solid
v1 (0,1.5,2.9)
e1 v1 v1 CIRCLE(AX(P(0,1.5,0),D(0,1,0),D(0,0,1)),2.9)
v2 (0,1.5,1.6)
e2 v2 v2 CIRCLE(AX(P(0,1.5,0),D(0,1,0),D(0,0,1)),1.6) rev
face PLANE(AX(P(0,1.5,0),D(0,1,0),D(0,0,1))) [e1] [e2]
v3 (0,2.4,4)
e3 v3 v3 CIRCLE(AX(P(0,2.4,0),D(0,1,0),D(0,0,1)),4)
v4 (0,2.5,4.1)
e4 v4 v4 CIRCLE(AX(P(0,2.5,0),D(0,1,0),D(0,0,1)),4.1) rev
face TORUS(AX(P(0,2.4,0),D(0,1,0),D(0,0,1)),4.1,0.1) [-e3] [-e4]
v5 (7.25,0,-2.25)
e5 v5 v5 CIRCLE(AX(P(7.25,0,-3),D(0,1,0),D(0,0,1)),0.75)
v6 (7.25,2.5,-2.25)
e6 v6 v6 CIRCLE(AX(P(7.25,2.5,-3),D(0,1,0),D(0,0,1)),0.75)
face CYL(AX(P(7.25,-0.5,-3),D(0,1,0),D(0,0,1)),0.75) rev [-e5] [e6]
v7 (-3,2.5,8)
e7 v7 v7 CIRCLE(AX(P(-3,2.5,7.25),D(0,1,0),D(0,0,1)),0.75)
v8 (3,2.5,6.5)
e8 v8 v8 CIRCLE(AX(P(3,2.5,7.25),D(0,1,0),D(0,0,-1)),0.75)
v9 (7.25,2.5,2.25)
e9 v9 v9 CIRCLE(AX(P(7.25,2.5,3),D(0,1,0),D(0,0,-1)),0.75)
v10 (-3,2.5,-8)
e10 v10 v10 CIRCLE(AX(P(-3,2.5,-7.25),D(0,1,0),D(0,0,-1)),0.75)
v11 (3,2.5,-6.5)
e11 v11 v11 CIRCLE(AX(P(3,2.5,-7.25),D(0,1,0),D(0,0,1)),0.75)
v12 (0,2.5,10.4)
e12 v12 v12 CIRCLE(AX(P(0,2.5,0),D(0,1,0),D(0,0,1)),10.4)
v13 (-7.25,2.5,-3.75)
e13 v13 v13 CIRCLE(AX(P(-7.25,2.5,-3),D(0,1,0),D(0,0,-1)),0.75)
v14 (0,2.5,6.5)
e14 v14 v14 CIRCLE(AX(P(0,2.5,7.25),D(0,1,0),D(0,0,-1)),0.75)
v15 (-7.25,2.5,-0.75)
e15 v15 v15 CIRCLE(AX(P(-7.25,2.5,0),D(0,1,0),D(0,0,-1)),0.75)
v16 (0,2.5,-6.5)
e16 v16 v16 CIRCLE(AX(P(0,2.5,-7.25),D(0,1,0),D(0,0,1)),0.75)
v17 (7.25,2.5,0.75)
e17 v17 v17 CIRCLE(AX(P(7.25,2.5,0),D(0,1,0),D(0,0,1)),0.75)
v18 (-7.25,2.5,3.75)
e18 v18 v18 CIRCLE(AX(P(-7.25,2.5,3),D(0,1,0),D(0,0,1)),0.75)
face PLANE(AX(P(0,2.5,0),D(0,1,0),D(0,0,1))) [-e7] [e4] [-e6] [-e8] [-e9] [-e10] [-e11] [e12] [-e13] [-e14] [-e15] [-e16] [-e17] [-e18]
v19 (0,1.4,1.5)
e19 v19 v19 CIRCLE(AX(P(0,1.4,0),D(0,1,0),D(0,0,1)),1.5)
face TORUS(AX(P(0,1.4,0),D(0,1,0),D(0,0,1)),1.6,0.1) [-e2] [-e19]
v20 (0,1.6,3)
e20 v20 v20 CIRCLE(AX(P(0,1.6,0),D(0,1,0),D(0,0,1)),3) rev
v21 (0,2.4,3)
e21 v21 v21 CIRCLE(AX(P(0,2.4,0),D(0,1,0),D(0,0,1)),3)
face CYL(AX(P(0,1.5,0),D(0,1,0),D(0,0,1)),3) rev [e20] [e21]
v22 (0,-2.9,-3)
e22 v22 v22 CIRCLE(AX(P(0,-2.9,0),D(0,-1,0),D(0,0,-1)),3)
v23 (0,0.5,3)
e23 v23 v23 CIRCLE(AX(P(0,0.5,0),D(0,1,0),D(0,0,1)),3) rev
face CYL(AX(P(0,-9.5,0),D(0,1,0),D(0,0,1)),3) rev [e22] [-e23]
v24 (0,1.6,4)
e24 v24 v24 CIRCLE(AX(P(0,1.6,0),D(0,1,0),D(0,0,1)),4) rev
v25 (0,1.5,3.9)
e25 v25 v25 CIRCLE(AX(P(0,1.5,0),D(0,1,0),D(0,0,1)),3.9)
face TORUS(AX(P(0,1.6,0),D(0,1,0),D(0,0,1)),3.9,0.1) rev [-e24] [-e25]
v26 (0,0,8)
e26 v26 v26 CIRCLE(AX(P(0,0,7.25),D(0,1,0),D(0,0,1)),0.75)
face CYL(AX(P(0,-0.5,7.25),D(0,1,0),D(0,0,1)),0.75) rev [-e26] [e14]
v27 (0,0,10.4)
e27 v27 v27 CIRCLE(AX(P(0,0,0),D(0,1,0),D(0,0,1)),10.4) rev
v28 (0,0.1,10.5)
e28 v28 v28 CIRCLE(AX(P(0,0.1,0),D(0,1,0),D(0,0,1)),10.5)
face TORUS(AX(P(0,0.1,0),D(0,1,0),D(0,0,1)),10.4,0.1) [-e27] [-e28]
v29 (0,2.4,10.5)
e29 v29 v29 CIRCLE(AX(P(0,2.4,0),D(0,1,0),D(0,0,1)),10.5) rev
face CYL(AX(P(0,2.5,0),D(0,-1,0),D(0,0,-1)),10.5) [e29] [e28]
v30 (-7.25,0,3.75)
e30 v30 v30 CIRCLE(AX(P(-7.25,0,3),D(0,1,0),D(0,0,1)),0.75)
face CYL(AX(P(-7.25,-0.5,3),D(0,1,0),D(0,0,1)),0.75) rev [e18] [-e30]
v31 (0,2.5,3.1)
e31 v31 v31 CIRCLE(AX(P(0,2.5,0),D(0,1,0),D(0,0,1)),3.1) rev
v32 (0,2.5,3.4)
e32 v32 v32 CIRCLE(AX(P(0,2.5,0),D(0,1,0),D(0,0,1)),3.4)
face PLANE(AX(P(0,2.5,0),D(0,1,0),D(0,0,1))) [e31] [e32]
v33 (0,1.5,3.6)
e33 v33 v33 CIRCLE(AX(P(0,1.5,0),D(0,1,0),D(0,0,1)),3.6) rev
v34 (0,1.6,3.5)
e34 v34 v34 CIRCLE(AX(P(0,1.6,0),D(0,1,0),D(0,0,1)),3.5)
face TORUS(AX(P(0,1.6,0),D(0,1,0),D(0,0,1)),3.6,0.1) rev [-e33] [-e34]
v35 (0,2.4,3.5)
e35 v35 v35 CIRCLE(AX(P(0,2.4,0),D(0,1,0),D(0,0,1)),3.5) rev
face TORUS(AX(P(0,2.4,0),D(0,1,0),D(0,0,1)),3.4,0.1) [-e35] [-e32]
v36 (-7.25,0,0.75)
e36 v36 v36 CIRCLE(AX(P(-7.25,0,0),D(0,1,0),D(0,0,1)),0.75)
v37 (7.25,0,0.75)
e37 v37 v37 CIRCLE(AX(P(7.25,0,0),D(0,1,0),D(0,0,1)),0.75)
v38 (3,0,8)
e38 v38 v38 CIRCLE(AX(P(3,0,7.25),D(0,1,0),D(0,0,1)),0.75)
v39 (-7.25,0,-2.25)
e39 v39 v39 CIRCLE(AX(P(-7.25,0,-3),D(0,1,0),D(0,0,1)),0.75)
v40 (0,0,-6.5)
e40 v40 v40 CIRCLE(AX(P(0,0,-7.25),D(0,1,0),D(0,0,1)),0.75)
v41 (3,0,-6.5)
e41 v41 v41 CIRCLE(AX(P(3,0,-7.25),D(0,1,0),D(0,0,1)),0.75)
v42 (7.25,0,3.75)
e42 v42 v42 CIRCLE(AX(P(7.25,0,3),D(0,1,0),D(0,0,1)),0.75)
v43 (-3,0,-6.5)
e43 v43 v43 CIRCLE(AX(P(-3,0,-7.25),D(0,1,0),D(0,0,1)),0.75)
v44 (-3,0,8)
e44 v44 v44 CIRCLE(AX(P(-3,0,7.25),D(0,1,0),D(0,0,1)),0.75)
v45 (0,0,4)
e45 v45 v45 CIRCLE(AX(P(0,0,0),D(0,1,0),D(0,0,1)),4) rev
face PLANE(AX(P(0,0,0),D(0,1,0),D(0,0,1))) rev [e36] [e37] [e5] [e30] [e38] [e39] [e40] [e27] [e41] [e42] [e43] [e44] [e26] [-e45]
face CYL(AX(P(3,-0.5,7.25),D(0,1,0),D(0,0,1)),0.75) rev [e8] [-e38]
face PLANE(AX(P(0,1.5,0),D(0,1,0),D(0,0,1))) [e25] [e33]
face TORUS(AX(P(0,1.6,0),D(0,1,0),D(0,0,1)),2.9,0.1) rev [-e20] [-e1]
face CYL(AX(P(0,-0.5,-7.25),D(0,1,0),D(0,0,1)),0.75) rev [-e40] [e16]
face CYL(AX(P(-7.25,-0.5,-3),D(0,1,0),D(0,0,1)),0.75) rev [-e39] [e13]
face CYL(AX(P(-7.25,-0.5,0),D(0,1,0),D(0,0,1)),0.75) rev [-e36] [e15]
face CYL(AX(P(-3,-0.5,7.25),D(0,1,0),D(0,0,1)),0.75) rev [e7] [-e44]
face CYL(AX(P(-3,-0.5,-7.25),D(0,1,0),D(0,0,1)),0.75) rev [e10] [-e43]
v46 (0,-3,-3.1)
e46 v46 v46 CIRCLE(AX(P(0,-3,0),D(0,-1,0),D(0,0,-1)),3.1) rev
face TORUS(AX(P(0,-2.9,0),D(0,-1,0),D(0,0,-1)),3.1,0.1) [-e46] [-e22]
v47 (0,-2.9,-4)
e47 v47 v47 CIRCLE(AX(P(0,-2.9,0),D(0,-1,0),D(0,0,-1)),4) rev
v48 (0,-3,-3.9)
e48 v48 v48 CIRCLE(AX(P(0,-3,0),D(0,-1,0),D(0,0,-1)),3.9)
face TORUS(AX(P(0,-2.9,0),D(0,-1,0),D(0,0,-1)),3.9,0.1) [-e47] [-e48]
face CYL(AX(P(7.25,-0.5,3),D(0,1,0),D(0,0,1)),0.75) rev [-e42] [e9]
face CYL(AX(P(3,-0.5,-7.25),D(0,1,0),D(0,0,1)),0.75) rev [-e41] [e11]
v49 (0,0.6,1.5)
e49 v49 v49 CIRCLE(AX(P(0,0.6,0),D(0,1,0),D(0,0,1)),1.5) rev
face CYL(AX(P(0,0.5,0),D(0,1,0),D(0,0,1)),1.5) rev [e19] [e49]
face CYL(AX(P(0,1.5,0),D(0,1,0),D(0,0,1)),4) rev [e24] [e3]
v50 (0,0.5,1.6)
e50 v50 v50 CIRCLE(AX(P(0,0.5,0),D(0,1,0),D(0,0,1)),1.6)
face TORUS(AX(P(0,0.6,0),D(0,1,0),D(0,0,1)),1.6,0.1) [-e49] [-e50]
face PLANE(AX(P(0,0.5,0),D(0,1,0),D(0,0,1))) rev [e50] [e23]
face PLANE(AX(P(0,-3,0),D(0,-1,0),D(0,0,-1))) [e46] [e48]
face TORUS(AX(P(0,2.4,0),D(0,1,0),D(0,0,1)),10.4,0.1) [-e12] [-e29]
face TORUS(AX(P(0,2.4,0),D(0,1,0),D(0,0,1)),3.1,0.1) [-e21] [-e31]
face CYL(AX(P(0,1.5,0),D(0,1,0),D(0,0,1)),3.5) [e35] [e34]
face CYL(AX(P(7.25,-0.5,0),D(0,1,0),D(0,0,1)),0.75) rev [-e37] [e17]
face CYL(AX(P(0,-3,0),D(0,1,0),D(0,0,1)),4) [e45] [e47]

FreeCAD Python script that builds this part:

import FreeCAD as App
import Part
import Sketcher
Q = App.Units.Quantity


def edges_at(feature, points):
    """Names of the edges that pass closest to the given points."""
    edges = feature.Shape.Edges
    near = lambda p: min(range(len(edges)), key=lambda i: edges[i].distToShape(Part.Vertex(*p))[0])
    return sorted({f"Edge{near(p) + 1}" for p in points})

doc = App.newDocument("Part")
body = doc.addObject("PartDesign::Body", "Body")

sketch1 = body.newObject("Sketcher::SketchObject", "Sketch")
sketch1.AttachmentSupport = (doc.getObject("XZ_Plane"), [""])
sketch1.MapMode = "FlatFace"
sketch1.addGeometry(Part.Circle(App.Vector(0, 0, 0), App.Vector(0, 0, 1), 10.5), False)
sketch1.addConstraint([
    Sketcher.Constraint("Coincident", 0, 3, -1, 1),
    Sketcher.Constraint("Diameter", 0, Q("21 mm")),
])
pad1 = body.newObject("PartDesign::Pad", "Pad")
pad1.Profile = sketch1
pad1.Length = 2.5
pad1.Reversed = True

sketch2 = body.newObject("Sketcher::SketchObject", "Sketch001")
sketch2.AttachmentSupport = (doc.getObject("XZ_Plane"), [""])
sketch2.MapMode = "FlatFace"
sketch2.AttachmentOffset = App.Placement(App.Vector(0, 0, -2.5), App.Rotation())
sketch2.addGeometry(Part.Circle(App.Vector(0, 0, 0), App.Vector(0, 0, 1), 3), False)
sketch2.addConstraint([
    Sketcher.Constraint("Coincident", 0, 3, -1, 1),
    Sketcher.Constraint("Diameter", 0, Q("6 mm")),
])
pocket1 = body.newObject("PartDesign::Pocket", "Pocket")
pocket1.Profile = sketch2
pocket1.Length = 12
pocket1.Reversed = True

sketch3 = body.newObject("Sketcher::SketchObject", "Sketch002")
sketch3.AttachmentSupport = (doc.getObject("XZ_Plane"), [""])
sketch3.MapMode = "FlatFace"
sketch3.addGeometry([
    Part.Circle(App.Vector(0, 0, 0), App.Vector(0, 0, 1), 4),
    Part.Circle(App.Vector(0, 0, 0), App.Vector(0, 0, 1), 3),
], False)
sketch3.addConstraint([
    Sketcher.Constraint("Coincident", 0, 3, -1, 1),
    Sketcher.Constraint("Coincident", 1, 3, -1, 1),
    Sketcher.Constraint("Diameter", 0, Q("8 mm")),
    Sketcher.Constraint("Diameter", 1, Q("6 mm")),
])
pad2 = body.newObject("PartDesign::Pad", "Pad001")
pad2.Profile = sketch3
pad2.Length = 3

sketch4 = body.newObject("Sketcher::SketchObject", "Sketch003")
sketch4.AttachmentSupport = (doc.getObject("XZ_Plane"), [""])
sketch4.MapMode = "FlatFace"
sketch4.AttachmentOffset = App.Placement(App.Vector(0, 0, -2.5), App.Rotation())
sketch4.addGeometry([
    Part.Circle(App.Vector(0, -7.25, 0), App.Vector(0, 0, 1), 0.75),
    Part.Circle(App.Vector(7.25, 0, 0), App.Vector(0, 0, 1), 0.75),
    Part.Circle(App.Vector(3, -7.25, 0), App.Vector(0, 0, 1), 0.75),
    Part.Circle(App.Vector(7.25, -3, 0), App.Vector(0, 0, 1), 0.75),
    Part.Circle(App.Vector(-3, -7.25, 0), App.Vector(0, 0, 1), 0.75),
    Part.Circle(App.Vector(7.25, 3, 0), App.Vector(0, 0, 1), 0.75),
    Part.Circle(App.Vector(3, 7.25, 0), App.Vector(0, 0, 1), 0.75),
    Part.Circle(App.Vector(0, 7.25, 0), App.Vector(0, 0, 1), 0.75),
    Part.Circle(App.Vector(-3, 7.25, 0), App.Vector(0, 0, 1), 0.75),
    Part.Circle(App.Vector(-7.25, 3, 0), App.Vector(0, 0, 1), 0.75),
    Part.Circle(App.Vector(-7.25, 0, 0), App.Vector(0, 0, 1), 0.75),
    Part.Circle(App.Vector(-7.25, -3, 0), App.Vector(0, 0, 1), 0.75),
], False)
sketch4.addConstraint([
    Sketcher.Constraint("Equal", 0, 1),
    Sketcher.Constraint("Equal", 1, 2),
    Sketcher.Constraint("Equal", 2, 3),
    Sketcher.Constraint("Equal", 3, 4),
    Sketcher.Constraint("Equal", 4, 5),
    Sketcher.Constraint("Equal", 5, 6),
    Sketcher.Constraint("Equal", 6, 7),
    Sketcher.Constraint("Equal", 7, 8),
    Sketcher.Constraint("Equal", 8, 9),
    Sketcher.Constraint("Equal", 9, 10),
    Sketcher.Constraint("Equal", 10, 11),
    Sketcher.Constraint("Symmetric", 4, 3, 6, 3, -1, 1),
    Sketcher.Constraint("Symmetric", 0, 3, 7, 3, -1, 1),
    Sketcher.Constraint("Symmetric", 2, 3, 8, 3, -1, 1),
    Sketcher.Constraint("Symmetric", 3, 3, 9, 3, -1, 1),
    Sketcher.Constraint("Symmetric", 1, 3, 10, 3, -1, 1),
    Sketcher.Constraint("Symmetric", 5, 3, 11, 3, -1, 1),
    Sketcher.Constraint("Symmetric", 2, 3, 4, 3, -2),
    Sketcher.Constraint("Symmetric", 5, 3, 9, 3, -2),
    Sketcher.Constraint("PointOnObject", 0, 3, -2),
    Sketcher.Constraint("PointOnObject", 1, 3, -1),
    Sketcher.Constraint("Horizontal", 0, 3, 2, 3),
    Sketcher.Constraint("Vertical", 1, 3, 3, 3),
    Sketcher.Constraint("Diameter", 0, Q("1.5 mm")),
    Sketcher.Constraint("DistanceX", -1, 1, 2, 3, Q("3 mm")),
    Sketcher.Constraint("DistanceY", 3, 3, -1, 1, Q("3 mm")),
    Sketcher.Constraint("DistanceY", 2, 3, 6, 3, Q("14.5 mm")),
    Sketcher.Constraint("DistanceX", -1, 1, 1, 3, Q("7.25 mm")),
])
pocket2 = body.newObject("PartDesign::Pocket", "Pocket001")
pocket2.Profile = sketch4
pocket2.Length = 3
pocket2.Reversed = True

sketch5 = body.newObject("Sketcher::SketchObject", "Sketch004")
sketch5.AttachmentSupport = (doc.getObject("XZ_Plane"), [""])
sketch5.MapMode = "FlatFace"
sketch5.AttachmentOffset = App.Placement(App.Vector(0, 0, -2.5), App.Rotation())
sketch5.addGeometry(Part.Circle(App.Vector(0, 0, 0), App.Vector(0, 0, 1), 3), False)
sketch5.addConstraint([
    Sketcher.Constraint("Coincident", 0, 3, -1, 1),
    Sketcher.Constraint("Diameter", 0, Q("6 mm")),
])
pad3 = body.newObject("PartDesign::Pad", "Pad002")
pad3.Profile = sketch5
pad3.Length = 2

sketch6 = body.newObject("Sketcher::SketchObject", "Sketch005")
sketch6.AttachmentSupport = (doc.getObject("XZ_Plane"), [""])
sketch6.MapMode = "FlatFace"
sketch6.AttachmentOffset = App.Placement(App.Vector(0, 0, -2.5), App.Rotation())
sketch6.addGeometry(Part.Circle(App.Vector(0, 0, 0), App.Vector(0, 0, 1), 3), False)
sketch6.addConstraint([
    Sketcher.Constraint("Coincident", 0, 3, -1, 1),
    Sketcher.Constraint("Diameter", 0, Q("6 mm")),
])
pocket3 = body.newObject("PartDesign::Pocket", "Pocket002")
pocket3.Profile = sketch6
pocket3.Length = 1
pocket3.Reversed = True

sketch7 = body.newObject("Sketcher::SketchObject", "Sketch006")
sketch7.AttachmentSupport = (doc.getObject("XZ_Plane"), [""])
sketch7.MapMode = "FlatFace"
sketch7.AttachmentOffset = App.Placement(App.Vector(0, 0, -1.5), App.Rotation())
sketch7.addGeometry(Part.Circle(App.Vector(0, 0, 0), App.Vector(0, 0, 1), 1.5), False)
sketch7.addConstraint([
    Sketcher.Constraint("Coincident", 0, 3, -1, 1),
    Sketcher.Constraint("Diameter", 0, Q("3 mm")),
])
pocket4 = body.newObject("PartDesign::Pocket", "Pocket003")
pocket4.Profile = sketch7
pocket4.Length = 1
pocket4.Reversed = True

sketch8 = body.newObject("Sketcher::SketchObject", "Sketch007")
sketch8.AttachmentSupport = (doc.getObject("XZ_Plane"), [""])
sketch8.MapMode = "FlatFace"
sketch8.AttachmentOffset = App.Placement(App.Vector(0, 0, -2.5), App.Rotation())
sketch8.addGeometry([
    Part.Circle(App.Vector(0, 0, 0), App.Vector(0, 0, 1), 4),
    Part.Circle(App.Vector(0, 0, 0), App.Vector(0, 0, 1), 3.5),
], False)
sketch8.addConstraint([
    Sketcher.Constraint("Coincident", 0, 3, -1, 1),
    Sketcher.Constraint("Coincident", 1, 3, -1, 1),
    Sketcher.Constraint("Diameter", 0, Q("8 mm")),
    Sketcher.Constraint("Diameter", 1, Q("7 mm")),
])
pocket5 = body.newObject("PartDesign::Pocket", "Pocket004")
pocket5.Profile = sketch8
pocket5.Length = 1
pocket5.Reversed = True
doc.recompute()

fillet = body.newObject("PartDesign::Fillet", "Fillet")
fillet.Base = (pocket5, edges_at(pocket5, [
    (-4, -3, 0),
    (-3, -3, 0),
    (-10.5, 0, 0),
    (-10.5, 2.5, 0),
    (-3, 1.5, 0),
    (-3, 2.5, 0),
    (-1.5, 0.5, 0),
    (-1.5, 1.5, 0),
    (-4, 1.5, 0),
    (-3.5, 1.5, 0),
    (-4, 2.5, 0),
    (-3.5, 2.5, 0),
]))
fillet.Radius = 0.1

doc.recompute()
